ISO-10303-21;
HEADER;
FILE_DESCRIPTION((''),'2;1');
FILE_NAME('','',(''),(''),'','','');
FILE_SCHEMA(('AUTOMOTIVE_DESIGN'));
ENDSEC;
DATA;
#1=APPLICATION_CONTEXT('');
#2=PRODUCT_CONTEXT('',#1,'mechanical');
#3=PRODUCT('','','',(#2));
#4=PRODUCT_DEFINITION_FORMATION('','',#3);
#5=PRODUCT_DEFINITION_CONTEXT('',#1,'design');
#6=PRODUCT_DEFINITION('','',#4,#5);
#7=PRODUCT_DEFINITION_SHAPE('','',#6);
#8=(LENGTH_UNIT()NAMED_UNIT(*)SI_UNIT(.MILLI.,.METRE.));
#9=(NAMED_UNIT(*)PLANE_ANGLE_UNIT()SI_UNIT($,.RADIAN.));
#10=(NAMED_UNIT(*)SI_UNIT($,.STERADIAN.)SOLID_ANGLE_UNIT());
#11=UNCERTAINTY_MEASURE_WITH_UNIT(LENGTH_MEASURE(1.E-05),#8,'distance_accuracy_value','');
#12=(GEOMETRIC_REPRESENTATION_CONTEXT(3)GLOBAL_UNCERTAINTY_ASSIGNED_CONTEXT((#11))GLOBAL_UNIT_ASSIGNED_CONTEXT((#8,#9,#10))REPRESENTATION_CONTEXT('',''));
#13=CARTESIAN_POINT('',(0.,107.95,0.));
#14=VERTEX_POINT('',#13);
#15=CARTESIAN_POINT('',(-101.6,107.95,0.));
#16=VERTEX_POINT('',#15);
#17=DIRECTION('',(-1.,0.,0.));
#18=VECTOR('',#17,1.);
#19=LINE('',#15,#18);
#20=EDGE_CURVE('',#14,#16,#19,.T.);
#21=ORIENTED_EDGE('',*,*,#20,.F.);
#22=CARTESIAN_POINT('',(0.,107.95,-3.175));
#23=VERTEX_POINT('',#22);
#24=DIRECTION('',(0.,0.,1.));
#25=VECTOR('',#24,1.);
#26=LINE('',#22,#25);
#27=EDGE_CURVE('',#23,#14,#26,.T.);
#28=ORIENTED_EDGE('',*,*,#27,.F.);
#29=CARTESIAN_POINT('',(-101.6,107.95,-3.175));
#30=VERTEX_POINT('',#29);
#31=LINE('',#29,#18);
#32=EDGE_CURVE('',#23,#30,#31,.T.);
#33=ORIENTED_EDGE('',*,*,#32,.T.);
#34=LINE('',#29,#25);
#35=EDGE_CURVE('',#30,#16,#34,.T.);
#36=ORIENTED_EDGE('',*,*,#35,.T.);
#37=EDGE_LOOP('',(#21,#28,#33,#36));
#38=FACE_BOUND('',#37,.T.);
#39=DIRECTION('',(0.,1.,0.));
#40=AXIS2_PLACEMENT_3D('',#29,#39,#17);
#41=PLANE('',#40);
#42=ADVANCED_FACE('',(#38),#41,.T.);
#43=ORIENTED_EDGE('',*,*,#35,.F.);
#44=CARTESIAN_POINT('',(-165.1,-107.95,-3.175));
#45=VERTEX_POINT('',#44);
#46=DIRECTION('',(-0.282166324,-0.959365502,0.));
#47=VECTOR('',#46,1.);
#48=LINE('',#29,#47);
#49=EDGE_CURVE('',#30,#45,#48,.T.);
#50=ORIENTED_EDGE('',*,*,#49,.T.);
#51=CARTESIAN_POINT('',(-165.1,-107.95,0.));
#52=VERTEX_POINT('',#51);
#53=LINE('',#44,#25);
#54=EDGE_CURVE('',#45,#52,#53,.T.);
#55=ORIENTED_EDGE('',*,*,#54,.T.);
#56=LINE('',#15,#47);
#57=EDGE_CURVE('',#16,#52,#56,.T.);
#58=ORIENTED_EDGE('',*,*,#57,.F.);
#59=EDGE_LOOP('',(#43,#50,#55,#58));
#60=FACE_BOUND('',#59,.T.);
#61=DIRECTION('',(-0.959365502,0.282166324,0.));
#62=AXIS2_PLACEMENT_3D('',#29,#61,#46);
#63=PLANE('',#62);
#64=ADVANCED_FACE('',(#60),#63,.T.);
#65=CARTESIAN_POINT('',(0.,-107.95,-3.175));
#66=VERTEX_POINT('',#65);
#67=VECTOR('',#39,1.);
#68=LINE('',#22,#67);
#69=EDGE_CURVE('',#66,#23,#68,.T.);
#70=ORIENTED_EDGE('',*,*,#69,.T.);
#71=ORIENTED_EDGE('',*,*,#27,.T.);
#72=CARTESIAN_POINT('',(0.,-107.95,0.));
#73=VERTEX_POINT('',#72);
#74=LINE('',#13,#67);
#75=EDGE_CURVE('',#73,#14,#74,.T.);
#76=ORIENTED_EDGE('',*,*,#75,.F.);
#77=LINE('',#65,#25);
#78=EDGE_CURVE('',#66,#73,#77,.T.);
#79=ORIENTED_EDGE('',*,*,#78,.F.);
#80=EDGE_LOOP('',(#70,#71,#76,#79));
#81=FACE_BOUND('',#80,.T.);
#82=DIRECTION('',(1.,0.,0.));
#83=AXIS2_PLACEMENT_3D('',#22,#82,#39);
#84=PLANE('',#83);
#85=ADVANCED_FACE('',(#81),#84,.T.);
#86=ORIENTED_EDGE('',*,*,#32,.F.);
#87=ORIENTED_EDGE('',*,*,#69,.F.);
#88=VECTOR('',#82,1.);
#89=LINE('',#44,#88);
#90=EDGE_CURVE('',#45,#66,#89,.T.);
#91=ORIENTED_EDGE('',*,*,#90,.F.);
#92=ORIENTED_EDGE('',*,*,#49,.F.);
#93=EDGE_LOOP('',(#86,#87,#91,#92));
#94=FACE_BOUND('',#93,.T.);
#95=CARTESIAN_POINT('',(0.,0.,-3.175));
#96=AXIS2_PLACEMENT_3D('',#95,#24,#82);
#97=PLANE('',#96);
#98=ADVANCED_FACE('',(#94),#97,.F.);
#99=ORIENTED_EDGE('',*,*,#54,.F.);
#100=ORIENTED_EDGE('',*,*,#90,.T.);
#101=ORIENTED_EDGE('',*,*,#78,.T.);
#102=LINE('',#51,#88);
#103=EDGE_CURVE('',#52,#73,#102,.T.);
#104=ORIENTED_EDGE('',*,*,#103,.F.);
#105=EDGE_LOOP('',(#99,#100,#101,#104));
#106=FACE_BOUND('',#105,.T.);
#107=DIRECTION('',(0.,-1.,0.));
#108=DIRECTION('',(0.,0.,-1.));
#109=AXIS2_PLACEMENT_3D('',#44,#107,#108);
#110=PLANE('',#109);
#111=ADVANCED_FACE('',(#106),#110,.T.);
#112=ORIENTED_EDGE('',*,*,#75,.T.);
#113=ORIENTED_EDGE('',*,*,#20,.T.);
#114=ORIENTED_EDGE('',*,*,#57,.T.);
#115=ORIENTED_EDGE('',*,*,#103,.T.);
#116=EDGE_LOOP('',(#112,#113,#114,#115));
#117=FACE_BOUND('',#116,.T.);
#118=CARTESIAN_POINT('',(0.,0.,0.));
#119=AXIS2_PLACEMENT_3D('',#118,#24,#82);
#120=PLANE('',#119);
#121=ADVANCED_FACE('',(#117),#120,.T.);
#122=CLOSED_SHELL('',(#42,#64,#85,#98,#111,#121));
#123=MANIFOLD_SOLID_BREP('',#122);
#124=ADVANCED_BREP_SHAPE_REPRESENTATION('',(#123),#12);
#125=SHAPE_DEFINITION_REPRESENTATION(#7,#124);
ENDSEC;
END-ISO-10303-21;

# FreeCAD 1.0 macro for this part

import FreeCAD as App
import Part
import Sketcher

V = App.Vector
Q = App.Units.Quantity

doc = App.newDocument("Part")
params = doc.addObject("Spreadsheet::Sheet", "Params")
for row, (alias, value) in enumerate([
    ("sketch1_width", "4 in"),
    ("sketch1_width2", "6.5 in"),
    ("sketch1_height", "8.5 in"),
    ("pad1_length", "0.125 in"),
], start=1):
    params.set(f"A{row}", alias)
    params.set(f"B{row}", "=" + value)
    params.setAlias(f"B{row}", alias)

body = doc.addObject("PartDesign::Body", "Body")

sketch1 = body.newObject("Sketcher::SketchObject", "Sketch")
sketch1.AttachmentSupport = (doc.getObject("XY_Plane"), [""])
sketch1.MapMode = "FlatFace"
sketch1.addGeometry(Part.LineSegment(V(0, 108, 0), V(-102, 108, 0)), False)
sketch1.addGeometry(Part.LineSegment(V(-102, 108, 0), V(-165, -108, 0)), False)
sketch1.addGeometry(Part.LineSegment(V(-165, -108, 0), V(0, -108, 0)), False)
sketch1.addGeometry(Part.LineSegment(V(0, -108, 0), V(0, 108, 0)), False)
sketch1.addConstraint(Sketcher.Constraint("Coincident", 0, 2, 1, 1))
sketch1.addConstraint(Sketcher.Constraint("Coincident", 1, 2, 2, 1))
sketch1.addConstraint(Sketcher.Constraint("Coincident", 2, 2, 3, 1))
sketch1.addConstraint(Sketcher.Constraint("Coincident", 3, 2, 0, 1))
sketch1.addConstraint(Sketcher.Constraint("Horizontal", 0))
sketch1.addConstraint(Sketcher.Constraint("Horizontal", 2))
sketch1.addConstraint(Sketcher.Constraint("Vertical", 3))
sketch1.addConstraint(Sketcher.Constraint("Symmetric", 2, 2, 3, 2, -1, 1))
sketch1.addConstraint(Sketcher.Constraint("DistanceX", 0, 2, 0, 1, Q("4 in")))
sketch1.addConstraint(Sketcher.Constraint("DistanceX", 2, 1, 2, 2, Q("6.5 in")))
sketch1.addConstraint(Sketcher.Constraint("DistanceY", 3, 1, 3, 2, Q("8.5 in")))
sketch1.setExpression("Constraints[8]", "Params.sketch1_width")
sketch1.setExpression("Constraints[9]", "Params.sketch1_width2")
sketch1.setExpression("Constraints[10]", "Params.sketch1_height")
pad1 = body.newObject("PartDesign::Pad", "Pad")
pad1.Profile = sketch1
pad1.setExpression("Length", "Params.pad1_length")
pad1.Reversed = True

doc.recompute()
